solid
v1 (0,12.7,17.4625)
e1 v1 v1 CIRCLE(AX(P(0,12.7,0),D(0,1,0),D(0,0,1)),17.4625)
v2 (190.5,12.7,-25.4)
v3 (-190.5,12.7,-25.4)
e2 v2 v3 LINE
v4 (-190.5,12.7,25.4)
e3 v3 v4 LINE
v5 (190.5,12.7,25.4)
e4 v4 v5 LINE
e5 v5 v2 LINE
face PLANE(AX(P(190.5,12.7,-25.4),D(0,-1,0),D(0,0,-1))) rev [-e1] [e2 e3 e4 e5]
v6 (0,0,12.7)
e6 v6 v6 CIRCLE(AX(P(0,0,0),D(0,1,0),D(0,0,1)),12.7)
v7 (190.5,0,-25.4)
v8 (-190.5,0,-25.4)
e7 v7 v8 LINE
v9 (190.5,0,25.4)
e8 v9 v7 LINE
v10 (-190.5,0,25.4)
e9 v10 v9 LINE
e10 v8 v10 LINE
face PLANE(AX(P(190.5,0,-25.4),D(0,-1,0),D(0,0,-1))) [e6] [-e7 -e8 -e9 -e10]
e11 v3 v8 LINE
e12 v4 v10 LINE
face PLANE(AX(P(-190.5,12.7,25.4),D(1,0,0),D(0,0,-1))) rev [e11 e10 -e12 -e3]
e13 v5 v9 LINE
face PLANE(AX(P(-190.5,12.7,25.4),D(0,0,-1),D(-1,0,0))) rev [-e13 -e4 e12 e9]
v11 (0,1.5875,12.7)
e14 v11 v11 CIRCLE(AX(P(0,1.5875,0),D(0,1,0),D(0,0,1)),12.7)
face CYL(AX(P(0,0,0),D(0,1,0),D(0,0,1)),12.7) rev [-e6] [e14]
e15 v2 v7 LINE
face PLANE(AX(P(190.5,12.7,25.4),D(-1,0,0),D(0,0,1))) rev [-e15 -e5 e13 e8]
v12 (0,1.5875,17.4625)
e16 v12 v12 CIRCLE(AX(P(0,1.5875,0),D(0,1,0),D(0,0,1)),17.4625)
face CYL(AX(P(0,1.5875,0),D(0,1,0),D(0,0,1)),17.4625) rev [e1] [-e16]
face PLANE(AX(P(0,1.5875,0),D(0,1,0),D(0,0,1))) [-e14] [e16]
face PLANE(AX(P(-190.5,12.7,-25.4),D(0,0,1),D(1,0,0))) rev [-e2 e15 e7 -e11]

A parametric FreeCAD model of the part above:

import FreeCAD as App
import Part
import Sketcher
from FreeCAD import Vector
Q = App.Units.Quantity

doc = App.newDocument("Part")
params = doc.addObject("Spreadsheet::Sheet", "Params")
for row, (alias, value) in enumerate([
    ("sketch1_width", "15 in"),
    ("sketch1_height", "2 in"),
    ("pad1_length", "0.5 in"),
    ("sketch2_diameter", "1.375 in"),
    ("pocket1_length", "0.4375 in"),
    ("sketch3_diameter", "1 in"),
], start=1):
    params.set(f"A{row}", alias)
    params.set(f"B{row}", "=" + value)
    params.setAlias(f"B{row}", alias)

body = doc.addObject("PartDesign::Body", "Body")

sketch1 = body.newObject("Sketcher::SketchObject", "Sketch")
sketch1.AttachmentSupport = (doc.getObject("XZ_Plane"), [""])
sketch1.MapMode = "FlatFace"
sketch1.addGeometry([
    Part.LineSegment(Vector(-190, -25, 0), Vector(-190, 25, 0)),
    Part.LineSegment(Vector(-190, 25, 0), Vector(190, 25, 0)),
    Part.LineSegment(Vector(190, 25, 0), Vector(190, -25, 0)),
    Part.LineSegment(Vector(190, -25, 0), Vector(-190, -25, 0)),
], False)
sketch1.addConstraint([
    Sketcher.Constraint("Coincident", 0, 2, 1, 1),
    Sketcher.Constraint("Coincident", 1, 2, 2, 1),
    Sketcher.Constraint("Coincident", 2, 2, 3, 1),
    Sketcher.Constraint("Coincident", 3, 2, 0, 1),
    Sketcher.Constraint("Vertical", 0),
    Sketcher.Constraint("Horizontal", 1),
    Sketcher.Constraint("Vertical", 2),
    Sketcher.Constraint("Horizontal", 3),
    Sketcher.Constraint("Symmetric", 0, 2, 2, 2, -1, 1),
    Sketcher.Constraint("DistanceX", 1, 1, 1, 2, Q("15 in")),
    Sketcher.Constraint("DistanceY", 0, 1, 0, 2, Q("2 in")),
])
sketch1.setExpression("Constraints[9]", "Params.sketch1_width")
sketch1.setExpression("Constraints[10]", "Params.sketch1_height")
pad1 = body.newObject("PartDesign::Pad", "Pad")
pad1.Profile = sketch1
pad1.setExpression("Length", "Params.pad1_length")
pad1.Reversed = True

sketch2 = body.newObject("Sketcher::SketchObject", "Sketch001")
sketch2.AttachmentSupport = (doc.getObject("XZ_Plane"), [""])
sketch2.MapMode = "FlatFace"
sketch2.AttachmentOffset = App.Placement(Vector(0, 0, -0.5 * 25.4), App.Rotation())
sketch2.addGeometry(Part.Circle(Vector(0, 0, 0), Vector(0, 0, 1), 17), False)
sketch2.addConstraint([
    Sketcher.Constraint("Coincident", 0, 3, -1, 1),
    Sketcher.Constraint("Diameter", 0, Q("1.375 in")),
])
sketch2.setExpression("Constraints[1]", "Params.sketch2_diameter")
pocket1 = body.newObject("PartDesign::Pocket", "Pocket")
pocket1.Profile = sketch2
pocket1.setExpression("Length", "Params.pocket1_length")
pocket1.Reversed = True

sketch3 = body.newObject("Sketcher::SketchObject", "Sketch002")
sketch3.AttachmentSupport = (doc.getObject("XZ_Plane"), [""])
sketch3.MapMode = "FlatFace"
sketch3.AttachmentOffset = App.Placement(Vector(0, 0, -0.0625 * 25.4), App.Rotation())
sketch3.addGeometry(Part.Circle(Vector(0, 0, 0), Vector(0, 0, 1), 13), False)
sketch3.addConstraint([
    Sketcher.Constraint("Coincident", 0, 3, -1, 1),
    Sketcher.Constraint("Diameter", 0, Q("1 in")),
])
sketch3.setExpression("Constraints[1]", "Params.sketch3_diameter")
pocket2 = body.newObject("PartDesign::Pocket", "Pocket001")
pocket2.Profile = sketch3
pocket2.Type = "ThroughAll"
pocket2.Reversed = True

doc.recompute()
